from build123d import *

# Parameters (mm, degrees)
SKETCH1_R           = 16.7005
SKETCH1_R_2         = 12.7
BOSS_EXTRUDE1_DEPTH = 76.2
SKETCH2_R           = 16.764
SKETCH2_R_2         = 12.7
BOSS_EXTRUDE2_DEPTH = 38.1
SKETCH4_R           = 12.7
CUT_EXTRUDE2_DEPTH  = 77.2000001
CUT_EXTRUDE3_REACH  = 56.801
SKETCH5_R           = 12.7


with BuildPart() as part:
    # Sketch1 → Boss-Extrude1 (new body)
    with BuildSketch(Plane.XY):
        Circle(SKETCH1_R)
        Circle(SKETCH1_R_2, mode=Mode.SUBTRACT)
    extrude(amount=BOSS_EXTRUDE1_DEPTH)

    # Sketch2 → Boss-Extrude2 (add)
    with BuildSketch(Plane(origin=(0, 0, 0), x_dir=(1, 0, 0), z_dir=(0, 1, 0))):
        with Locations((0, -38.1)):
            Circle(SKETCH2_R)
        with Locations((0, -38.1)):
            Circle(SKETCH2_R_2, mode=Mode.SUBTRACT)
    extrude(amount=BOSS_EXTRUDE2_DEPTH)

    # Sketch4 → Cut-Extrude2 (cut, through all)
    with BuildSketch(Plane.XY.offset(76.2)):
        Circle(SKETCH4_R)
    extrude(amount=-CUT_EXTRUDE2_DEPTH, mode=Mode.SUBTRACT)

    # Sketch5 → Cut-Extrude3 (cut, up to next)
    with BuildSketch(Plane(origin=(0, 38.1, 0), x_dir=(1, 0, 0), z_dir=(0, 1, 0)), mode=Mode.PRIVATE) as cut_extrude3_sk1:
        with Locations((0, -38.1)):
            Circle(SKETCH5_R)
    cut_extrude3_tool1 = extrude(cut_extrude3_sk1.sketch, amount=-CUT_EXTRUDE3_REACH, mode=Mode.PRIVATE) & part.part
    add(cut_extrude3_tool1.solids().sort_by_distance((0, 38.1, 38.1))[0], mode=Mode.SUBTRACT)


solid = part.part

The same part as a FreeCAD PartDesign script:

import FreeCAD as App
import Part
import Sketcher

V = App.Vector
Q = App.Units.Quantity

doc = App.newDocument("Part")
body = doc.addObject("PartDesign::Body", "Body")

sketch1 = body.newObject("Sketcher::SketchObject", "Sketch")
sketch1.AttachmentSupport = (doc.getObject("XY_Plane"), [""])
sketch1.MapMode = "FlatFace"
sketch1.addGeometry(Part.Circle(V(0, 0, 0), V(0, 0, 1), 17), False)
sketch1.addGeometry(Part.Circle(V(0, 0, 0), V(0, 0, 1), 13), False)
sketch1.addConstraint(Sketcher.Constraint("Coincident", 0, 3, -1, 1))
sketch1.addConstraint(Sketcher.Constraint("Coincident", 1, 3, -1, 1))
sketch1.addConstraint(Sketcher.Constraint("Diameter", 1, Q("1 in")))
sketch1.addConstraint(Sketcher.Constraint("Diameter", 0, Q("1.315 in")))
pad1 = body.newObject("PartDesign::Pad", "Pad")
pad1.Profile = sketch1
pad1.Length = Q("3 in")

sketch2 = body.newObject("Sketcher::SketchObject", "Sketch001")
sketch2.AttachmentSupport = (doc.getObject("XZ_Plane"), [""])
sketch2.MapMode = "FlatFace"
sketch2.addGeometry(Part.Circle(V(0, 38, 0), V(0, 0, 1), 17), False)
sketch2.addGeometry(Part.Circle(V(0, 38, 0), V(0, 0, 1), 13), False)
sketch2.addConstraint(Sketcher.Constraint("Coincident", 1, 3, 0, 3))
sketch2.addConstraint(Sketcher.Constraint("PointOnObject", 0, 3, -2))
sketch2.addConstraint(Sketcher.Constraint("Diameter", 1, Q("1 in")))
sketch2.addConstraint(Sketcher.Constraint("Diameter", 0, Q("1.32 in")))
sketch2.addConstraint(Sketcher.Constraint("DistanceY", -1, 1, 0, 3, Q("1.5 in")))
pad2 = body.newObject("PartDesign::Pad", "Pad001")
pad2.Profile = sketch2
pad2.Length = Q("1.5 in")
pad2.Reversed = True

sketch3 = body.newObject("Sketcher::SketchObject", "Sketch002")
sketch3.AttachmentSupport = (doc.getObject("XY_Plane"), [""])
sketch3.MapMode = "FlatFace"
sketch3.AttachmentOffset = App.Placement(V(0, 0, 3 * 25.4), App.Rotation())
sketch3.addGeometry(Part.Circle(V(0, 0, 0), V(0, 0, 1), 13), False)
sketch3.addConstraint(Sketcher.Constraint("Coincident", 0, 3, -1, 1))
sketch3.addConstraint(Sketcher.Constraint("Diameter", 0, Q("1 in")))
pocket1 = body.newObject("PartDesign::Pocket", "Pocket")
pocket1.Profile = sketch3
pocket1.Type = "ThroughAll"

sketch4 = body.newObject("Sketcher::SketchObject", "Sketch003")
sketch4.AttachmentSupport = (doc.getObject("XZ_Plane"), [""])
sketch4.MapMode = "FlatFace"
sketch4.AttachmentOffset = App.Placement(V(0, 0, -1.5 * 25.4), App.Rotation())
sketch4.addGeometry(Part.Circle(V(0, 38, 0), V(0, 0, 1), 13), False)
sketch4.addConstraint(Sketcher.Constraint("PointOnObject", 0, 3, -2))
sketch4.addConstraint(Sketcher.Constraint("Diameter", 0, Q("1 in")))
sketch4.addConstraint(Sketcher.Constraint("DistanceY", -1, 1, 0, 3, Q("1.5 in")))
pocket2 = body.newObject("PartDesign::Pocket", "Pocket001")
pocket2.Profile = sketch4
pocket2.Length = Q("1.5 in")
pocket2.Reversed = True

doc.recompute()
